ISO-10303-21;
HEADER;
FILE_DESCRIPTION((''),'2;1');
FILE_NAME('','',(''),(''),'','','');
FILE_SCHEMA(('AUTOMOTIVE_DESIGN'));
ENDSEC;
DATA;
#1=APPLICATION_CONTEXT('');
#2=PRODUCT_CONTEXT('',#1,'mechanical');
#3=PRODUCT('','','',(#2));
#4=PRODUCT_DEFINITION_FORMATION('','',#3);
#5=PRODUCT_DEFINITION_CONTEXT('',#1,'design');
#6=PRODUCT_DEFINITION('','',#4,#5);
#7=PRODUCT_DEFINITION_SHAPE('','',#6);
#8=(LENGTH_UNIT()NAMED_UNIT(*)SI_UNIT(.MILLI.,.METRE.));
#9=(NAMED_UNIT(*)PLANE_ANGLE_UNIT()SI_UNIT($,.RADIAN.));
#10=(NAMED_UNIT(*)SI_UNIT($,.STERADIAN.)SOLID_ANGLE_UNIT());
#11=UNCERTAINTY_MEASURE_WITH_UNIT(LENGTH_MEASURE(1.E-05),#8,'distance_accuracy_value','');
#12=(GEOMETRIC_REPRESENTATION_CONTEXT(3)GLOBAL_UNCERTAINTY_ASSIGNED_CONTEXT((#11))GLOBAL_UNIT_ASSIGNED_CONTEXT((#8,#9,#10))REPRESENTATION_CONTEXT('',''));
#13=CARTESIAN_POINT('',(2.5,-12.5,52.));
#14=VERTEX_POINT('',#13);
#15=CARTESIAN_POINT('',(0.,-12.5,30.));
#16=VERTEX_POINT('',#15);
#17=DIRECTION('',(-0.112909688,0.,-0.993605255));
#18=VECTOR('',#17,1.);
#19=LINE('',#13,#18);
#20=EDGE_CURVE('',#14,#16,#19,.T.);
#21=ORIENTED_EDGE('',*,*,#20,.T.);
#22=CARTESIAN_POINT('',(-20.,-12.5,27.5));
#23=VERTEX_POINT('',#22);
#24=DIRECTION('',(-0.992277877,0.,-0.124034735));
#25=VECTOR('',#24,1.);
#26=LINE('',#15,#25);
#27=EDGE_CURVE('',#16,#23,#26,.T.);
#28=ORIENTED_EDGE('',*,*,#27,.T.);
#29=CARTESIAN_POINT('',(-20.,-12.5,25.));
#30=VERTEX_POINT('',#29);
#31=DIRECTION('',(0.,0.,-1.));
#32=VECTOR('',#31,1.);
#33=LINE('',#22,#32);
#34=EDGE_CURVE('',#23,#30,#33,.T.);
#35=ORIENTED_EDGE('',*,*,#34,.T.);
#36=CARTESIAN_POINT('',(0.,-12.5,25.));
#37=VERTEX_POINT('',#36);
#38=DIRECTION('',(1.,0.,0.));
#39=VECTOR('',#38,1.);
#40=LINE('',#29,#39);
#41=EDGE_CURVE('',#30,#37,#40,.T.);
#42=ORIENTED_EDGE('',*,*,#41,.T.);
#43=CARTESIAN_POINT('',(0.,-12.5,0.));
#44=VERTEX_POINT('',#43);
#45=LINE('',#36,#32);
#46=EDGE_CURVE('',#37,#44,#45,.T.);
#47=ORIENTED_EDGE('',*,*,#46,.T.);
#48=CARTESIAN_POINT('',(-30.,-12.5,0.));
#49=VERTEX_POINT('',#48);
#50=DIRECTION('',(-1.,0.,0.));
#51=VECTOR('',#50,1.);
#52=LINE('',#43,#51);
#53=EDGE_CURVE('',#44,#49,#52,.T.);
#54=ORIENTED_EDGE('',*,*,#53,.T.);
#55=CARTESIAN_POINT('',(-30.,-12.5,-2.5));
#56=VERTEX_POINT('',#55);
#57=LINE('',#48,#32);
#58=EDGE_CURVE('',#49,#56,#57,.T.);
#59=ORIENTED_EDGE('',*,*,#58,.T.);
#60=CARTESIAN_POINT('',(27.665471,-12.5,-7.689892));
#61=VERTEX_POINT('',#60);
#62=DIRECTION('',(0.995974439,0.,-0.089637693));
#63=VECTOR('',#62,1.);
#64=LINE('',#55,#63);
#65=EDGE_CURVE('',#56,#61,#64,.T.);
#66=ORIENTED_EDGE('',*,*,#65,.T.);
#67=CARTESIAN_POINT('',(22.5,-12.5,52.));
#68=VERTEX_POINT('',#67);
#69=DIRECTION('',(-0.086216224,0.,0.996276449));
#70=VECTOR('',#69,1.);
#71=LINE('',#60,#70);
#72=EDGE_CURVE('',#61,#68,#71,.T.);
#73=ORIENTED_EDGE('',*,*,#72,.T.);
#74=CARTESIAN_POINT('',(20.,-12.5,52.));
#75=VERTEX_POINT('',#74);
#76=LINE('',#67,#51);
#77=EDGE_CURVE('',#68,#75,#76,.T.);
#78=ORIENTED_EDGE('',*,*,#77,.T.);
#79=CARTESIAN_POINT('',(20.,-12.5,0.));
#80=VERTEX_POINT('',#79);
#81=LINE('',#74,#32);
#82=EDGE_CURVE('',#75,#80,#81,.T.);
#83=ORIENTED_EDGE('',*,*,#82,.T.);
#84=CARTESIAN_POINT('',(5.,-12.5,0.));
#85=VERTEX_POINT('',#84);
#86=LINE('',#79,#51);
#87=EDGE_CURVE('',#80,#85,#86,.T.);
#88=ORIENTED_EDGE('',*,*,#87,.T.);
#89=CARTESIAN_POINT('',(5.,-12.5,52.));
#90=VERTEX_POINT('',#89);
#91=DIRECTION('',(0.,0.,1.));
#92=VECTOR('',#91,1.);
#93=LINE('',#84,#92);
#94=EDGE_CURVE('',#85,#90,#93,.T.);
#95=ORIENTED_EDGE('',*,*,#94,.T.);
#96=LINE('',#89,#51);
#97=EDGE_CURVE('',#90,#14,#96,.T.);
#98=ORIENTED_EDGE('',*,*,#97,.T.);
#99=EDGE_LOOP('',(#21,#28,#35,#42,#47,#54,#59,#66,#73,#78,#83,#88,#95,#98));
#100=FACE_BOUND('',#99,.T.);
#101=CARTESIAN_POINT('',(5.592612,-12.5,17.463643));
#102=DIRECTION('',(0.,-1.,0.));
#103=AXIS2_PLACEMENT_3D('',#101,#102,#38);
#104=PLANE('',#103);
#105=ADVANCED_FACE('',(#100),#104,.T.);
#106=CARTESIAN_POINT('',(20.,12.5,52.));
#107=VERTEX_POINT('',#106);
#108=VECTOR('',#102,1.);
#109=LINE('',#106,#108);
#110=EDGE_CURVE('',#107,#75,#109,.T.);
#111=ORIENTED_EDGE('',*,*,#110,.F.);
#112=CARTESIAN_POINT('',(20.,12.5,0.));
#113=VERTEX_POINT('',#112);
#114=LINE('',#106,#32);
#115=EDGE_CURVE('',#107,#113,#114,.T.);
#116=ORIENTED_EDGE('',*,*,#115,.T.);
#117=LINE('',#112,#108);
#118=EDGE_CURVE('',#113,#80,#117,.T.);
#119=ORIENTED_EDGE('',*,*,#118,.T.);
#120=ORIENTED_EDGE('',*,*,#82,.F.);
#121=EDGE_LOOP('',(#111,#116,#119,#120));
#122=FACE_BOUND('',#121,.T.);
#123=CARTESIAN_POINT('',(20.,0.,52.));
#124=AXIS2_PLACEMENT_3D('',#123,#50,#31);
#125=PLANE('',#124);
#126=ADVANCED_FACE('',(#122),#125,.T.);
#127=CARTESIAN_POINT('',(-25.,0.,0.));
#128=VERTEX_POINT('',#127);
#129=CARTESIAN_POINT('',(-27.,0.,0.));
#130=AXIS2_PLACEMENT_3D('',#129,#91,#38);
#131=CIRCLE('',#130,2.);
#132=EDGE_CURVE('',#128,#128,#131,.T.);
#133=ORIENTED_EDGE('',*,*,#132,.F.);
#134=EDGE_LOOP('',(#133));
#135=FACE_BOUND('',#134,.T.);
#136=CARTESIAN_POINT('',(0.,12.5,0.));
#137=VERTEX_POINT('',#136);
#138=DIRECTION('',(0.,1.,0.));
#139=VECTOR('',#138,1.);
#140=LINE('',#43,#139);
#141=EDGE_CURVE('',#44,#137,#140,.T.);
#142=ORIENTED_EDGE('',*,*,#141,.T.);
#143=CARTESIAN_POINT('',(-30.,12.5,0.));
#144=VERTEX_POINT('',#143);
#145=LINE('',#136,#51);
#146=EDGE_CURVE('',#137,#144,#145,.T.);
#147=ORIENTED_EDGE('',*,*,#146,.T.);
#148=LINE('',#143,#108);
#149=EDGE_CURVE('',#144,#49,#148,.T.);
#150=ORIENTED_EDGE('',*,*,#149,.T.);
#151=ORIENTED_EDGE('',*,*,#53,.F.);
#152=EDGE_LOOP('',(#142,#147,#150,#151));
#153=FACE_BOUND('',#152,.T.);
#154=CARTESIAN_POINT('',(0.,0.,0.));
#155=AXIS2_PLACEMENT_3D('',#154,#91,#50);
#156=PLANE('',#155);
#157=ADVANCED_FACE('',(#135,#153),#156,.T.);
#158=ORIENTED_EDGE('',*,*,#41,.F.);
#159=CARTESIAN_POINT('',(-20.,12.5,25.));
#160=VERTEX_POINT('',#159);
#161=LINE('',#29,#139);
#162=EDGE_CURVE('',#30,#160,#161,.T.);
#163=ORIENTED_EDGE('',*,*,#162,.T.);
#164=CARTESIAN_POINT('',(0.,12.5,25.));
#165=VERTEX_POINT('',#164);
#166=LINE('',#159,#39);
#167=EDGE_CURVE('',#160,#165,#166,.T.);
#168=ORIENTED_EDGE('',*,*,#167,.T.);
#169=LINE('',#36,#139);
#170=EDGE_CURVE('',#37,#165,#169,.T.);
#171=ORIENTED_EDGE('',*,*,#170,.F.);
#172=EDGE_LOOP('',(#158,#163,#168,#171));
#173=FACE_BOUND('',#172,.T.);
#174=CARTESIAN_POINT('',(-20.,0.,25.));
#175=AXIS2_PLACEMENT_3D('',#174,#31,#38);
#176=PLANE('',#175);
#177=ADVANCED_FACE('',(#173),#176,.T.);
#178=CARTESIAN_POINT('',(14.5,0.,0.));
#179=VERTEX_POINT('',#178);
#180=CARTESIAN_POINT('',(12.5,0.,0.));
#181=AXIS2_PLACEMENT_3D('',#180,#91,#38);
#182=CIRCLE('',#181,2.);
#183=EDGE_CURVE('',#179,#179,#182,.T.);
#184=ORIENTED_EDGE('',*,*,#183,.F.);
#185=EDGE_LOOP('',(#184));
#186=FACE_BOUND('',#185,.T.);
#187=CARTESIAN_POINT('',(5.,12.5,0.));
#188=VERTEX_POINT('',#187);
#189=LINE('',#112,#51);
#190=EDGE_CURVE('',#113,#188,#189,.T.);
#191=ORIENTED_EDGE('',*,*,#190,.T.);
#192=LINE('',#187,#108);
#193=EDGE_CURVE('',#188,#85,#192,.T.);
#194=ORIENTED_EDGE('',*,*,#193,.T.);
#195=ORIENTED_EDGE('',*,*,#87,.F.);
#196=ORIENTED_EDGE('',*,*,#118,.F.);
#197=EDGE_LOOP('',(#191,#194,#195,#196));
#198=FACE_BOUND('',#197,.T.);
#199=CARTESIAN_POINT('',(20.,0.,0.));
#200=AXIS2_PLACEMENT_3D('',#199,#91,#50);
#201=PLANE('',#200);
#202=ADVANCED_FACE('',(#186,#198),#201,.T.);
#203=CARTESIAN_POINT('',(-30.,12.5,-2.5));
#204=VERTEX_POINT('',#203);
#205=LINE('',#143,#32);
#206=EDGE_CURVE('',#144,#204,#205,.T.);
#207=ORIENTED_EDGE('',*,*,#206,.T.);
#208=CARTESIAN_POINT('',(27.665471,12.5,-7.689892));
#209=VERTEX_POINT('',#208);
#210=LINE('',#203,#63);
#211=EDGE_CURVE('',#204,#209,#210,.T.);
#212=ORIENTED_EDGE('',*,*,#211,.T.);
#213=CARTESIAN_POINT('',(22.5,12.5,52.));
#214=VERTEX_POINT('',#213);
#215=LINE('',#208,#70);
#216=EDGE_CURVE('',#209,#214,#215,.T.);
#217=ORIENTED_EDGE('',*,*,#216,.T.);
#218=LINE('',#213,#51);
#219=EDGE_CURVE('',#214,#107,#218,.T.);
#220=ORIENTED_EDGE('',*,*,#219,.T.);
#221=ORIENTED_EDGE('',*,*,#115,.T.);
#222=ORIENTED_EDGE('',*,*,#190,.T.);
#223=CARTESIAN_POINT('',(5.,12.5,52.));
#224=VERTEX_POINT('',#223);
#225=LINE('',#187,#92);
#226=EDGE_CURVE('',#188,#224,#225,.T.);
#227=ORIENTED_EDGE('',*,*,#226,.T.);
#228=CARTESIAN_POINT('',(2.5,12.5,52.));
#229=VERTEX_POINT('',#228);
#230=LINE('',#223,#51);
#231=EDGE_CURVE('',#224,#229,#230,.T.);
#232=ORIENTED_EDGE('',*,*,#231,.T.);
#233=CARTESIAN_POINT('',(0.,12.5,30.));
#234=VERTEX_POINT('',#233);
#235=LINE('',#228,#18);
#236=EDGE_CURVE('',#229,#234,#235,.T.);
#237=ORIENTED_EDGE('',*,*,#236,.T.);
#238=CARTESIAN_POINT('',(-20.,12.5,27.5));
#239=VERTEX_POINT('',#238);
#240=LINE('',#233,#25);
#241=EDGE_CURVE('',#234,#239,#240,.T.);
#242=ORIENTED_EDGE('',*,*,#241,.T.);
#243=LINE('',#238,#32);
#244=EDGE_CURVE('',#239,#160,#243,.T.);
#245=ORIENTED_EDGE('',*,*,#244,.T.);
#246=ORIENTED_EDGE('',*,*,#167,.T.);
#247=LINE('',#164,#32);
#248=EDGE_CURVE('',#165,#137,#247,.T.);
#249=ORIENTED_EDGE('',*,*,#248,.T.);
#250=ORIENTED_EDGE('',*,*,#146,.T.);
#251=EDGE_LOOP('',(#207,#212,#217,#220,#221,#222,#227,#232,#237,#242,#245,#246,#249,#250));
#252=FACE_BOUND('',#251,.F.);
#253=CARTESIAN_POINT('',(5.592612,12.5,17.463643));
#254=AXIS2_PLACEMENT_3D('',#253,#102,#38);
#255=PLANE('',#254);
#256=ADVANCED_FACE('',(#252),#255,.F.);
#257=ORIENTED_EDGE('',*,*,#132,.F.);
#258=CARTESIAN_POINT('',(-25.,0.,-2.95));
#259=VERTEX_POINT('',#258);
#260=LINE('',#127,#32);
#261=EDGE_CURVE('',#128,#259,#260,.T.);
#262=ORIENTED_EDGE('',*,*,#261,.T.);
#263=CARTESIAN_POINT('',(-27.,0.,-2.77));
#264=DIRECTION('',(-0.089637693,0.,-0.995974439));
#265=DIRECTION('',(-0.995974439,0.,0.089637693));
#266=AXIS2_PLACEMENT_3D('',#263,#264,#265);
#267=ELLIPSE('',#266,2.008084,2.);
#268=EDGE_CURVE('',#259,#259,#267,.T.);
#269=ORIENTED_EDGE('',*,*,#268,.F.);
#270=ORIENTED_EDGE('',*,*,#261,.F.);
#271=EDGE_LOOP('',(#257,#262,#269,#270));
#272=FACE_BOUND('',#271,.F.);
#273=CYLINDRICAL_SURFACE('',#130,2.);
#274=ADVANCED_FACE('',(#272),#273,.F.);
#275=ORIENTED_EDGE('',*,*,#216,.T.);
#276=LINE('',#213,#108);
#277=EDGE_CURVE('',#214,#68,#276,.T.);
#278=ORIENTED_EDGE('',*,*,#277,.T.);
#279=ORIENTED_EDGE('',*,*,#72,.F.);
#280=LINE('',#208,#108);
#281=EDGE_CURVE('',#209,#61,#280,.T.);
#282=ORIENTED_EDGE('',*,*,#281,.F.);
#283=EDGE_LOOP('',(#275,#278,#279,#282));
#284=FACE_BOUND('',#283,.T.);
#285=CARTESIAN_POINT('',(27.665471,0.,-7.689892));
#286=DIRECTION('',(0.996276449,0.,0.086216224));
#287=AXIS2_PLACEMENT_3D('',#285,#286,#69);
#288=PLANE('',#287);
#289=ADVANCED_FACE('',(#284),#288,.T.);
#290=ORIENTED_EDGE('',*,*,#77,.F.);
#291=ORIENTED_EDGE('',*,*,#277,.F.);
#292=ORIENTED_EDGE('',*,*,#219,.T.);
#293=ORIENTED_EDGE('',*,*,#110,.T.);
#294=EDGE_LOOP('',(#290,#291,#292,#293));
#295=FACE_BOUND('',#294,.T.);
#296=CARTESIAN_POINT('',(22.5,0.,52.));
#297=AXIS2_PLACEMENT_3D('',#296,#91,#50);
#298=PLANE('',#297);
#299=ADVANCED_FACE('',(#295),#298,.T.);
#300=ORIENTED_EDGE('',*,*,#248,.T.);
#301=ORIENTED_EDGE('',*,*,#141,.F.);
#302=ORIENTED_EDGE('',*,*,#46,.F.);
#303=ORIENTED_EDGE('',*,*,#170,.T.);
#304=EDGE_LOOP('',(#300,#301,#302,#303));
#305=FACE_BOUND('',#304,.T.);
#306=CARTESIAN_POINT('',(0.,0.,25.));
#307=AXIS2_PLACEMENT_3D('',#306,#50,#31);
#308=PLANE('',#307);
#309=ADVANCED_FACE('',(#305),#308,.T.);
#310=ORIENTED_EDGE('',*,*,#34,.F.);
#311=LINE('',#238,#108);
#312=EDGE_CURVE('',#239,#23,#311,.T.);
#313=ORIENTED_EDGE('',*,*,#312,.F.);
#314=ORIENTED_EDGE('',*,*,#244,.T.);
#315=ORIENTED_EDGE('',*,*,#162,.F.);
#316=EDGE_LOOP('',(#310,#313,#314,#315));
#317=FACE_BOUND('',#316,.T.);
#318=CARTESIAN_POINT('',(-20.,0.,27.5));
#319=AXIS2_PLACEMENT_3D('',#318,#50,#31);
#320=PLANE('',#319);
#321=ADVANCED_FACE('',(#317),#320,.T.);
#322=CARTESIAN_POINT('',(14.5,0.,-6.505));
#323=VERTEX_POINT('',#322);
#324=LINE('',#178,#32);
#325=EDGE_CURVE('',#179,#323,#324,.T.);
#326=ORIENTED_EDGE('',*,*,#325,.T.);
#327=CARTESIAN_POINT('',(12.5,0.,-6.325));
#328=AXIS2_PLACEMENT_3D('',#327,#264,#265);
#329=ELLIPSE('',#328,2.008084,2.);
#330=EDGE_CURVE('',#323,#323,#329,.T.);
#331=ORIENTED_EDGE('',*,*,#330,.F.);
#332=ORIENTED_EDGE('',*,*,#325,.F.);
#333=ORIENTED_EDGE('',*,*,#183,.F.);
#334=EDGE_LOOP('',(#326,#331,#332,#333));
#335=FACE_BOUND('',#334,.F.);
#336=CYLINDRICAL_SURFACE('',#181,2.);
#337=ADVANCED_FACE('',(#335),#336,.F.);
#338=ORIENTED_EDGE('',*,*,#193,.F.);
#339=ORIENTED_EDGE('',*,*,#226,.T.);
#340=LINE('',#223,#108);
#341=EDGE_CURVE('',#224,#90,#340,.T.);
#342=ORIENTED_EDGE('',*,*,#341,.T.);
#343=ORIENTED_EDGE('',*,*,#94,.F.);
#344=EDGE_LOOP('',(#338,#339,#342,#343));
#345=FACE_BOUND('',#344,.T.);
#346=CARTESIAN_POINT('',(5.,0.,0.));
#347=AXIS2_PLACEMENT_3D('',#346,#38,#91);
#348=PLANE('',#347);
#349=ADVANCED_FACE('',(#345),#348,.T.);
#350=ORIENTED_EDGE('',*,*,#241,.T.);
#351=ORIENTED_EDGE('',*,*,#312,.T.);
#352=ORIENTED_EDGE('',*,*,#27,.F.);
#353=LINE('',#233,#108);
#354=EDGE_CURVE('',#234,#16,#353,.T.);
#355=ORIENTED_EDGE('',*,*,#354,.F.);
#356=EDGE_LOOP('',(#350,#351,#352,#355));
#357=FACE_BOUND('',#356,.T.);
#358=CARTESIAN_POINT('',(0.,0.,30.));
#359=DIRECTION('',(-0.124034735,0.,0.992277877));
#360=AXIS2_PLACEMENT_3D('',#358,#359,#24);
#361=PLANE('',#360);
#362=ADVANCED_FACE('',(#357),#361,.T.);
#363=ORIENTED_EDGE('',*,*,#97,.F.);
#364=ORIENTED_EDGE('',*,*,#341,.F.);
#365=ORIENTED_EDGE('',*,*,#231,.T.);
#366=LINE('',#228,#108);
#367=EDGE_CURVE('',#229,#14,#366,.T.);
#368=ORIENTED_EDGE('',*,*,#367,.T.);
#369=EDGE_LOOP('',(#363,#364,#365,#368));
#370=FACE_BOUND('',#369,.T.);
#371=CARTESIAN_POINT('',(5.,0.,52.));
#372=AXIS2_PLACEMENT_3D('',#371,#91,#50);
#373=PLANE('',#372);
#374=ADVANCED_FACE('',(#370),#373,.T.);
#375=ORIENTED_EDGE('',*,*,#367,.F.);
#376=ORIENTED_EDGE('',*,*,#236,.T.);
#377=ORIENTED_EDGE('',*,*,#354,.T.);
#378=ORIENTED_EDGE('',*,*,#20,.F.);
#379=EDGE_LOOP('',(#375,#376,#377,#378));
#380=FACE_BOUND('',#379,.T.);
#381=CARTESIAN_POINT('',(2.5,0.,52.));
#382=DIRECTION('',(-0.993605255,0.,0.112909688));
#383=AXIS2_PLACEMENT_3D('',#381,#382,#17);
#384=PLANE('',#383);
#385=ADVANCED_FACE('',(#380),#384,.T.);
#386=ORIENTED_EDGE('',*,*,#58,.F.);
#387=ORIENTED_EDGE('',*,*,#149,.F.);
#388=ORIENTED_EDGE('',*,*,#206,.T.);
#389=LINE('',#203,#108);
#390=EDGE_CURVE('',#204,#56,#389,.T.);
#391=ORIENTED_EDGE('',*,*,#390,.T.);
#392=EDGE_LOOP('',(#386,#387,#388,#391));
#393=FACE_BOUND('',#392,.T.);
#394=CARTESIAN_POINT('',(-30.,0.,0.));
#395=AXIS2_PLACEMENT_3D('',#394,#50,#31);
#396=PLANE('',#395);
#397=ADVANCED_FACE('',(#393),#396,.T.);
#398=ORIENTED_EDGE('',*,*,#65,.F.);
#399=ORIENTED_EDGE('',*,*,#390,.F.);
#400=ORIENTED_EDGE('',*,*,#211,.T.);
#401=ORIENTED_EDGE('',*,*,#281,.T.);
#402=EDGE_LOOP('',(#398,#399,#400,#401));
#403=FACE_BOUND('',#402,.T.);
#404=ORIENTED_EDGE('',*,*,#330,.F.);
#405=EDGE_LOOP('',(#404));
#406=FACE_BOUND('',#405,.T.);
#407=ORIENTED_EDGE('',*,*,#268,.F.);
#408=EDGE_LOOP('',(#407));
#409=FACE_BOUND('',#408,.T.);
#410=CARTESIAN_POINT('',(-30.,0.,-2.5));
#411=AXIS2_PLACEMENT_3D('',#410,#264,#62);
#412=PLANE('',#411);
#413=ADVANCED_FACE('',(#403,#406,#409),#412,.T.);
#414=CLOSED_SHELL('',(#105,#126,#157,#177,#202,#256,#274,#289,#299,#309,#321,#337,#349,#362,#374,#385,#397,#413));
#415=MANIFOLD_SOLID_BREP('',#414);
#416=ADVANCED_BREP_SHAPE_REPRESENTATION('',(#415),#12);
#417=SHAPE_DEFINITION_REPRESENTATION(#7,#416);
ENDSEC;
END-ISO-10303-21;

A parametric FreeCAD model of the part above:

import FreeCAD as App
import Part
import Sketcher

V = App.Vector
Q = App.Units.Quantity


def add_polygon(sketch, points):
    """Adds a closed chain of lines whose ends are joined by coincident constraints."""
    first, n = sketch.GeometryCount, len(points)
    for a, b in zip(points, points[1:] + points[:1]):
        sketch.addGeometry(Part.LineSegment(App.Vector(*a, 0), App.Vector(*b, 0)), False)
    for i in range(n):
        sketch.addConstraint(Sketcher.Constraint("Coincident", first + i, 2, first + (i + 1) % n, 1))

doc = App.newDocument("Part")
body = doc.addObject("PartDesign::Body", "Body")

# Sketch on XZ plane
sketch1 = body.newObject("Sketcher::SketchObject", "Sketch")
sketch1.AttachmentSupport = (doc.getObject("XZ_Plane"), [""])
sketch1.MapMode = "FlatFace"
add_polygon(sketch1, [(0, 0), (-30, 0), (-30, -2.5), (27.7, -7.7), (22.5, 52), (20, 52), (20, 0), (5, 0), (5, 52), (2.5, 52), (0, 30), (-20, 27.5), (-20, 25), (0, 25)])  # lines 0-13
sketch1.addConstraint([
    Sketcher.Constraint("Horizontal", 0),
    Sketcher.Constraint("Vertical", 1),
    Sketcher.Constraint("Horizontal", 4),
    Sketcher.Constraint("Vertical", 5),
    Sketcher.Constraint("Horizontal", 6),
    Sketcher.Constraint("Vertical", 7),
    Sketcher.Constraint("Horizontal", 8),
    Sketcher.Constraint("Vertical", 11),
    Sketcher.Constraint("Horizontal", 12),
    Sketcher.Constraint("Vertical", 13),
    Sketcher.Constraint("Coincident", 13, 2, -1, 1),
    Sketcher.Constraint("PointOnObject", 5, 2, -1),
    Sketcher.Constraint("PointOnObject", 9, 2, -2),
    Sketcher.Constraint("Horizontal", 4, 2, 7, 2),
    Sketcher.Constraint("Equal", 4, 8),
    Sketcher.Constraint("Equal", 8, 1),
    Sketcher.Constraint("Equal", 1, 11),
    Sketcher.Constraint("DistanceX", 0, 2, 0, 1, Q("30 mm")),
    Sketcher.Constraint("DistanceX", 6, 2, 6, 1, Q("15 mm")),
    Sketcher.Constraint("DistanceX", 12, 1, 12, 2, Q("20 mm")),
    Sketcher.Constraint("DistanceY", 5, 2, 5, 1, Q("52 mm")),
    Sketcher.Constraint("DistanceY", 13, 2, 13, 1, Q("25 mm")),
    Sketcher.Constraint("DistanceX", 4, 2, 4, 1, Q("2.5 mm")),
    Sketcher.Constraint("DistanceX", -1, 1, 4, 2, Q("20 mm")),
    Sketcher.Constraint("DistanceY", -1, 1, 9, 2, Q("30 mm")),
    Sketcher.Constraint("Distance", 3, Q("59.912981 mm")),
    Sketcher.Constraint("DistanceX", -1, 1, 2, 2, Q("27.665471 mm")),
])
pad1 = body.newObject("PartDesign::Pad", "Pad")
pad1.Profile = sketch1
pad1.Length = 25
pad1.Midplane = True

# Sketch on XY plane
sketch2 = body.newObject("Sketcher::SketchObject", "Sketch001")
sketch2.AttachmentSupport = (doc.getObject("XY_Plane"), [""])
sketch2.MapMode = "FlatFace"
sketch2.addGeometry([
    Part.Circle(V(-27, 0, 0), V(0, 0, 1), 2),
    Part.Circle(V(12.5, 0, 0), V(0, 0, 1), 2),
], False)
sketch2.addConstraint([
    Sketcher.Constraint("Equal", 0, 1),
    Sketcher.Constraint("PointOnObject", 0, 3, -1),
    Sketcher.Constraint("PointOnObject", 1, 3, -1),
    Sketcher.Constraint("Diameter", 0, Q("4 mm")),
    Sketcher.Constraint("DistanceX", 0, 3, -1, 1, Q("27 mm")),
    Sketcher.Constraint("DistanceX", -1, 1, 1, 3, Q("12.5 mm")),
])
pocket1 = body.newObject("PartDesign::Pocket", "Pocket")
pocket1.Profile = sketch2
pocket1.Length = 25

doc.recompute()
